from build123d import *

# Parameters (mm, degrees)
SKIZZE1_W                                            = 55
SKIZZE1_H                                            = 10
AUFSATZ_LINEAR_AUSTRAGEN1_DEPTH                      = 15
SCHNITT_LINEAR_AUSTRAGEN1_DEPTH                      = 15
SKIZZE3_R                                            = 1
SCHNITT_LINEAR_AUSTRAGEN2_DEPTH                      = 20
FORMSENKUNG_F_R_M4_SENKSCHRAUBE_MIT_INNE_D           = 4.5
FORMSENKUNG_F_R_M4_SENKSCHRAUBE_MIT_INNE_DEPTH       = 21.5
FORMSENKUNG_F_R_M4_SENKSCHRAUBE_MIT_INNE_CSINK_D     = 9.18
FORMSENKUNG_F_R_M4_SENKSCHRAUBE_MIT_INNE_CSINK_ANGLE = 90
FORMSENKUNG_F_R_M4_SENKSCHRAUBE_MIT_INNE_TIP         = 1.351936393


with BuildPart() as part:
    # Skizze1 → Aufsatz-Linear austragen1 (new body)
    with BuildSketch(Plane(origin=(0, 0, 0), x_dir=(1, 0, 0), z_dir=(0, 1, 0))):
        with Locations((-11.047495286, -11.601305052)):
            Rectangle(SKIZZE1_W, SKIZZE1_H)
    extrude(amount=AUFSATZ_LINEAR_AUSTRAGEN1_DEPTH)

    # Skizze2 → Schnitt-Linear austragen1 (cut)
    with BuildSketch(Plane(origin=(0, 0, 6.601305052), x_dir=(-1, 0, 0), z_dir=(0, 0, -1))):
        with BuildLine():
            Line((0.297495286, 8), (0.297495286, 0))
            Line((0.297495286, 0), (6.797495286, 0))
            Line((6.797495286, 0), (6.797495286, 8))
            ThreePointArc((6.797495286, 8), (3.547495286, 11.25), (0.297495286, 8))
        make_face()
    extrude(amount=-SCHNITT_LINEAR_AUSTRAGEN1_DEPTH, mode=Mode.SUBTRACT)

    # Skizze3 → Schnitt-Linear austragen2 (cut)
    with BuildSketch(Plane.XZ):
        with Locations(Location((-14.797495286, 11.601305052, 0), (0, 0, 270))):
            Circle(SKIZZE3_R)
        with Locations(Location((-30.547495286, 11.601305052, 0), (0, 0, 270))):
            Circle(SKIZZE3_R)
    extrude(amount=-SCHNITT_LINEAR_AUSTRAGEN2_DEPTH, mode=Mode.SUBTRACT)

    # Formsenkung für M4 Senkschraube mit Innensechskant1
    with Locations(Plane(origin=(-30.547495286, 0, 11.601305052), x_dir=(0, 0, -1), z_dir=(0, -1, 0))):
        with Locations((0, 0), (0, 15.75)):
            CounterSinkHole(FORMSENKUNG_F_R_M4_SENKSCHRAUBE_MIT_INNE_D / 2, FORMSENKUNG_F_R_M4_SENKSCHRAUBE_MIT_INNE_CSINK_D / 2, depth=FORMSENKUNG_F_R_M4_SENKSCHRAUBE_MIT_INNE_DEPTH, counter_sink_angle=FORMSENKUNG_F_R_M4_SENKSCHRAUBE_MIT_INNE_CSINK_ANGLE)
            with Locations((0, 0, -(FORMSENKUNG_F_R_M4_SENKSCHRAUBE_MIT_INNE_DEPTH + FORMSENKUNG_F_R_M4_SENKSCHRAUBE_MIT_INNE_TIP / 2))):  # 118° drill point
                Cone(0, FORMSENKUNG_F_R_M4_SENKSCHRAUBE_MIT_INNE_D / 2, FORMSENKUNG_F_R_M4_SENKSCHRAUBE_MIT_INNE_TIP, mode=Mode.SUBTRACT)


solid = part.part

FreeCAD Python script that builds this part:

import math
import FreeCAD as App
import Part
import Sketcher
from FreeCAD import Vector

doc = App.newDocument("Part")
body = doc.addObject("PartDesign::Body", "Body")

# Sketch on XZ plane
sketch1 = body.newObject("Sketcher::SketchObject", "Sketch")
sketch1.AttachmentSupport = (doc.getObject("XZ_Plane"), [""])
sketch1.MapMode = "FlatFace"
sketch1.addGeometry([
    Part.LineSegment(Vector(-39, 7, 0), Vector(-39, 17, 0)),
    Part.LineSegment(Vector(-39, 17, 0), Vector(16, 17, 0)),
    Part.LineSegment(Vector(16, 17, 0), Vector(16, 7, 0)),
    Part.LineSegment(Vector(16, 7, 0), Vector(-39, 7, 0)),
], False)
sketch1.addConstraint([
    Sketcher.Constraint("Coincident", 0, 2, 1, 1),
    Sketcher.Constraint("Coincident", 1, 2, 2, 1),
    Sketcher.Constraint("Coincident", 2, 2, 3, 1),
    Sketcher.Constraint("Coincident", 3, 2, 0, 1),
    Sketcher.Constraint("Vertical", 0),
    Sketcher.Constraint("Horizontal", 1),
    Sketcher.Constraint("Vertical", 2),
    Sketcher.Constraint("Horizontal", 3),
    Sketcher.Constraint("DistanceX", 1, 1, 1, 2, 55.0),
    Sketcher.Constraint("DistanceY", 0, 1, 0, 2, 10.0),
    Sketcher.Constraint("DistanceX", 0, 2, -1, 1, 38.547495),
    Sketcher.Constraint("DistanceY", -1, 1, 0, 2, 16.601305),
])
pad1 = body.newObject("PartDesign::Pad", "Pad")
pad1.Profile = sketch1
pad1.Length = 15
pad1.Reversed = True

# Sketch on XY plane
sketch2 = body.newObject("Sketcher::SketchObject", "Sketch001")
sketch2.AttachmentSupport = (doc.getObject("XY_Plane"), [""])
sketch2.MapMode = "FlatFace"
sketch2.AttachmentOffset = App.Placement(Vector(0, 0, 6.601305), App.Rotation())
sketch2.addGeometry([
    Part.LineSegment(Vector(-0.3, 8, 0), Vector(-0.3, 0, 0)),
    Part.LineSegment(Vector(-0.3, 0, 0), Vector(-6.8, 0, 0)),
    Part.LineSegment(Vector(-6.8, 0, 0), Vector(-6.8, 8, 0)),
    Part.ArcOfCircle(Part.Circle(Vector(-3.5, 8, 0), Vector(0, 0, 1), 3.2), math.radians(0), math.radians(180)),
], False)
sketch2.addConstraint([
    Sketcher.Constraint("Coincident", 0, 2, 1, 1),
    Sketcher.Constraint("Coincident", 1, 2, 2, 1),
    Sketcher.Constraint("Tangent", 2, 2, 3, 2),
    Sketcher.Constraint("Tangent", 3, 1, 0, 1),
    Sketcher.Constraint("Vertical", 0),
    Sketcher.Constraint("Horizontal", 1),
    Sketcher.Constraint("Vertical", 2),
    Sketcher.Constraint("PointOnObject", 0, 2, -1),
    Sketcher.Constraint("DistanceY", 0, 2, 0, 1, 8.0),
    Sketcher.Constraint("Radius", 3, 3.25),
    Sketcher.Constraint("DistanceX", 3, 3, -1, 1, 3.547495),
])
pocket1 = body.newObject("PartDesign::Pocket", "Pocket")
pocket1.Profile = sketch2
pocket1.Length = 15
pocket1.Reversed = True

# Sketch on XZ plane
sketch3 = body.newObject("Sketcher::SketchObject", "Sketch002")
sketch3.AttachmentSupport = (doc.getObject("XZ_Plane"), [""])
sketch3.MapMode = "FlatFace"
sketch3.addGeometry([
    Part.Circle(Vector(-14.8, 11.6, 0), Vector(0, 0, 1), 1),
    Part.Circle(Vector(-30.5, 11.6, 0), Vector(0, 0, 1), 1),
], False)
sketch3.addConstraint([
    Sketcher.Constraint("Equal", 0, 1),
    Sketcher.Constraint("Horizontal", 0, 3, 1, 3),
    Sketcher.Constraint("Diameter", 0, 2.0),
    Sketcher.Constraint("DistanceX", 1, 3, 0, 3, 15.75),
    Sketcher.Constraint("DistanceX", 0, 3, -1, 1, 14.797495),
    Sketcher.Constraint("DistanceY", -1, 1, 0, 3, 11.601305),
])
pocket2 = body.newObject("PartDesign::Pocket", "Pocket001")
pocket2.Profile = sketch3
pocket2.Length = 20

# Sketch on XZ plane
sketch4 = body.newObject("Sketcher::SketchObject", "Sketch003")
sketch4.AttachmentSupport = (doc.getObject("XZ_Plane"), [""])
sketch4.MapMode = "FlatFace"
sketch4.addGeometry([
    Part.Circle(Vector(-30.5, 11.6, 0), Vector(0, 0, 1), 2.2),
    Part.Circle(Vector(-14.8, 11.6, 0), Vector(0, 0, 1), 2.2),
], False)
sketch4.addConstraint([
    Sketcher.Constraint("Equal", 0, 1),
    Sketcher.Constraint("Horizontal", 0, 3, 1, 3),
    Sketcher.Constraint("Diameter", 0, 4.5),
    Sketcher.Constraint("DistanceX", 0, 3, 1, 3, 15.75),
    Sketcher.Constraint("DistanceX", 0, 3, -1, 1, 30.547495),
    Sketcher.Constraint("DistanceY", -1, 1, 0, 3, 11.601305),
])
doc.recompute()
hole = body.newObject("PartDesign::Hole", "Hole")
hole.Profile = sketch4
hole.ThreadType = "None"
hole.Diameter = 4.5
hole.DepthType = "Dimension"
hole.Depth = 21.5
hole.DrillPoint = "Angled"
hole.DrillPointAngle = 118
hole.HoleCutType = "Countersink"
hole.HoleCutDiameter = 9.18
hole.HoleCutCountersinkAngle = 90

doc.recompute()
